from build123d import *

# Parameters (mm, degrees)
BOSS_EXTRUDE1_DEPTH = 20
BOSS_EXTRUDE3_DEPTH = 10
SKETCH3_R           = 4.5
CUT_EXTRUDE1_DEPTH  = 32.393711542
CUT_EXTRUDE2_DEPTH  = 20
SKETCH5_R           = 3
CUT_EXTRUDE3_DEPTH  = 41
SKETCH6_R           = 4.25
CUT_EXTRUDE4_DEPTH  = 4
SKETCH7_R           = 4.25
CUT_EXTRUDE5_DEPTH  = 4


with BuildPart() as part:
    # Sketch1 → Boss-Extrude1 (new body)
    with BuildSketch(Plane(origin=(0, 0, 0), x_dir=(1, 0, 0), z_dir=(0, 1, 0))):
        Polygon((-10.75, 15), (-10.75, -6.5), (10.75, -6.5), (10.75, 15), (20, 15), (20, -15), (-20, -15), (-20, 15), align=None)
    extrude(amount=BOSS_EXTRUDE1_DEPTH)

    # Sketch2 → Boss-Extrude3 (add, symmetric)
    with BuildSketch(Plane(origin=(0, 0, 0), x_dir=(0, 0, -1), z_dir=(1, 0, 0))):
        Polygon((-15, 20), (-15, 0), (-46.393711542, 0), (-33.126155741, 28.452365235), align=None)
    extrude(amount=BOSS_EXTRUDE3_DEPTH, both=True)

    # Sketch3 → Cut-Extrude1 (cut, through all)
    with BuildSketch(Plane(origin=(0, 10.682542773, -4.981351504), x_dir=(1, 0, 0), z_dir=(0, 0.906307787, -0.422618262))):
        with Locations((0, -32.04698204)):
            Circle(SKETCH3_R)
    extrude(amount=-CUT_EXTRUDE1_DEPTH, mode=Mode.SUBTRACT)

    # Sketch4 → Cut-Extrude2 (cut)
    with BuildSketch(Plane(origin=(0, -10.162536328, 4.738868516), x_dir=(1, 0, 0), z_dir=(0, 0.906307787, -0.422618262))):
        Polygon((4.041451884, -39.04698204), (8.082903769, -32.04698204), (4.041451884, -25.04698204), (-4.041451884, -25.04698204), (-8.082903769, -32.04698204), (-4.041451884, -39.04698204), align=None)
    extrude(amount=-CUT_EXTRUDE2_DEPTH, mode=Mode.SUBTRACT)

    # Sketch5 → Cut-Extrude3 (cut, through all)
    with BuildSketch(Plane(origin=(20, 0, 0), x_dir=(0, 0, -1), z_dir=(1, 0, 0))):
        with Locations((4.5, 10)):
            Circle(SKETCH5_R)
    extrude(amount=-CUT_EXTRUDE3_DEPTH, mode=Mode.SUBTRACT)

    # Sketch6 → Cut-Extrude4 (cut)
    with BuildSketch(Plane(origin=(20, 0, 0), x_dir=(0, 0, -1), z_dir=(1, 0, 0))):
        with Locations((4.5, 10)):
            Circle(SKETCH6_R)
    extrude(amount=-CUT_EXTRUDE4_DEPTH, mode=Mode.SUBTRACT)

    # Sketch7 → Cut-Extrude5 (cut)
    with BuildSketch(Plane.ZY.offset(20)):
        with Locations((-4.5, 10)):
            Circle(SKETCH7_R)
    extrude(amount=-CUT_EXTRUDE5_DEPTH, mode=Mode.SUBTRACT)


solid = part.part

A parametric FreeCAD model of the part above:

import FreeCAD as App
import Part
import Sketcher
Q = App.Units.Quantity

doc = App.newDocument("Part")
body = doc.addObject("PartDesign::Body", "Body")

# Sketch on XZ plane
sketch1 = body.newObject("Sketcher::SketchObject", "Sketch")
sketch1.AttachmentSupport = (doc.getObject("XZ_Plane"), [""])
sketch1.MapMode = "FlatFace"
sketch1.addGeometry([
    Part.LineSegment(App.Vector(-11, 6, 0), App.Vector(-11, -15, 0)),  # 0
    Part.LineSegment(App.Vector(-11, -15, 0), App.Vector(-20, -15, 0)),  # 1
    Part.LineSegment(App.Vector(-20, -15, 0), App.Vector(-20, 15, 0)),  # 2
    Part.LineSegment(App.Vector(-20, 15, 0), App.Vector(20, 15, 0)),  # 3
    Part.LineSegment(App.Vector(20, 15, 0), App.Vector(20, -15, 0)),  # 4
    Part.LineSegment(App.Vector(20, -15, 0), App.Vector(11, -15, 0)),  # 5
    Part.LineSegment(App.Vector(11, -15, 0), App.Vector(11, 6, 0)),  # 6
    Part.LineSegment(App.Vector(11, 6, 0), App.Vector(-11, 6, 0)),  # 7
], False)
sketch1.addConstraint([
    Sketcher.Constraint("Coincident", 0, 2, 1, 1),
    Sketcher.Constraint("Coincident", 1, 2, 2, 1),
    Sketcher.Constraint("Coincident", 2, 2, 3, 1),
    Sketcher.Constraint("Coincident", 3, 2, 4, 1),
    Sketcher.Constraint("Coincident", 4, 2, 5, 1),
    Sketcher.Constraint("Coincident", 5, 2, 6, 1),
    Sketcher.Constraint("Coincident", 6, 2, 7, 1),
    Sketcher.Constraint("Coincident", 7, 2, 0, 1),
    Sketcher.Constraint("Vertical", 0),
    Sketcher.Constraint("Horizontal", 1),
    Sketcher.Constraint("Vertical", 2),
    Sketcher.Constraint("Horizontal", 3),
    Sketcher.Constraint("Vertical", 4),
    Sketcher.Constraint("Horizontal", 5),
    Sketcher.Constraint("Vertical", 6),
    Sketcher.Constraint("Horizontal", 7),
    Sketcher.Constraint("Symmetric", 1, 2, 3, 2, -1, 1),
    Sketcher.Constraint("Symmetric", 0, 2, 5, 2, -2),
    Sketcher.Constraint("Equal", 7, 0),
    Sketcher.Constraint("DistanceX", 3, 1, 3, 2, Q("40 mm")),
    Sketcher.Constraint("DistanceY", 2, 1, 2, 2, Q("30 mm")),
    Sketcher.Constraint("DistanceX", 7, 2, 7, 1, Q("21.5 mm")),
])
pad1 = body.newObject("PartDesign::Pad", "Pad")
pad1.Profile = sketch1
pad1.Length = 20
pad1.Reversed = True

# Sketch on YZ plane
sketch2 = body.newObject("Sketcher::SketchObject", "Sketch001")
sketch2.AttachmentSupport = (doc.getObject("YZ_Plane"), [""])
sketch2.MapMode = "FlatFace"
sketch2.addGeometry([
    Part.LineSegment(App.Vector(0, 15, 0), App.Vector(20, 15, 0)),
    Part.LineSegment(App.Vector(20, 15, 0), App.Vector(28, 33, 0)),
    Part.LineSegment(App.Vector(28, 33, 0), App.Vector(0, 46, 0)),
    Part.LineSegment(App.Vector(0, 46, 0), App.Vector(0, 15, 0)),
], False)
sketch2.addConstraint([
    Sketcher.Constraint("Coincident", 0, 2, 1, 1),
    Sketcher.Constraint("Coincident", 1, 2, 2, 1),
    Sketcher.Constraint("Coincident", 2, 2, 3, 1),
    Sketcher.Constraint("Coincident", 3, 2, 0, 1),
    Sketcher.Constraint("Horizontal", 0),
    Sketcher.Constraint("Vertical", 3),
    Sketcher.Constraint("PointOnObject", 2, 2, -2),
    Sketcher.Constraint("Perpendicular", 1, 2),
    Sketcher.Constraint("DistanceX", 0, 1, 0, 2, Q("20 mm")),
    Sketcher.Constraint("Angle", 1, Q("65 deg")),
    Sketcher.Constraint("Distance", 1, Q("20 mm")),
    Sketcher.Constraint("DistanceY", -1, 1, 0, 2, Q("15 mm")),
])
pad2 = body.newObject("PartDesign::Pad", "Pad001")
pad2.Profile = sketch2
pad2.Length = 20
pad2.Midplane = True

# Sketch on an angled plane
sketch3 = body.newObject("Sketcher::SketchObject", "Sketch002")
sketch3.Placement = App.Placement(App.Vector(0, 10.682543, -4.981352), App.Rotation(App.Vector(1, 0, 0), App.Vector(0, -0.422618262, -0.906307787), App.Vector(0, 0.906307787, -0.422618262), "ZXY"))
sketch3.addGeometry(Part.Circle(App.Vector(0, -32, 0), App.Vector(0, 0, 1), 4.5), False)
sketch3.addConstraint([
    Sketcher.Constraint("PointOnObject", 0, 3, -2),
    Sketcher.Constraint("Diameter", 0, Q("9 mm")),
    Sketcher.Constraint("DistanceY", 0, 3, -1, 1, Q("32.046982 mm")),
])
pocket1 = body.newObject("PartDesign::Pocket", "Pocket")
pocket1.Profile = sketch3
pocket1.Type = "ThroughAll"

# Sketch on an angled plane
sketch4 = body.newObject("Sketcher::SketchObject", "Sketch003")
sketch4.Placement = App.Placement(App.Vector(0, -10.162536, 4.738869), App.Rotation(App.Vector(1, 0, 0), App.Vector(0, -0.422618262, -0.906307787), App.Vector(0, 0.906307787, -0.422618262), "ZXY"))
sketch4.addGeometry([
    Part.LineSegment(App.Vector(4, -39, 0), App.Vector(8, -32, 0)),  # 0
    Part.LineSegment(App.Vector(8, -32, 0), App.Vector(4, -25, 0)),  # 1
    Part.LineSegment(App.Vector(4, -25, 0), App.Vector(-4, -25, 0)),  # 2
    Part.LineSegment(App.Vector(-4, -25, 0), App.Vector(-8, -32, 0)),  # 3
    Part.LineSegment(App.Vector(-8, -32, 0), App.Vector(-4, -39, 0)),  # 4
    Part.LineSegment(App.Vector(-4, -39, 0), App.Vector(4, -39, 0)),  # 5
], False)
sketch4.addConstraint([
    Sketcher.Constraint("Coincident", 0, 2, 1, 1),
    Sketcher.Constraint("Coincident", 1, 2, 2, 1),
    Sketcher.Constraint("Coincident", 2, 2, 3, 1),
    Sketcher.Constraint("Coincident", 3, 2, 4, 1),
    Sketcher.Constraint("Coincident", 4, 2, 5, 1),
    Sketcher.Constraint("Coincident", 5, 2, 0, 1),
    Sketcher.Constraint("Horizontal", 2),
    Sketcher.Constraint("Horizontal", 5),
    Sketcher.Constraint("Symmetric", 0, 2, 3, 2, -2),
    Sketcher.Constraint("Parallel", 0, 3),
    Sketcher.Constraint("Parallel", 1, 4),
    Sketcher.Constraint("Vertical", 2, 2, 4, 2),
    Sketcher.Constraint("Vertical", 1, 2, 5, 2),
    Sketcher.Constraint("Angle", 0, Q("60 deg")),
    Sketcher.Constraint("DistanceY", 0, 2, 1, 2, Q("7 mm")),
    Sketcher.Constraint("DistanceX", 2, 2, 2, 1, Q("8.082904 mm")),
    Sketcher.Constraint("DistanceY", 0, 2, -1, 1, Q("32.046982 mm")),
])
pocket2 = body.newObject("PartDesign::Pocket", "Pocket001")
pocket2.Profile = sketch4
pocket2.Length = 20

# Sketch on YZ plane
sketch5 = body.newObject("Sketcher::SketchObject", "Sketch004")
sketch5.AttachmentSupport = (doc.getObject("YZ_Plane"), [""])
sketch5.MapMode = "FlatFace"
sketch5.AttachmentOffset = App.Placement(App.Vector(0, 0, 20), App.Rotation())
sketch5.addGeometry(Part.Circle(App.Vector(10, -4.5, 0), App.Vector(0, 0, 1), 3), False)
sketch5.addConstraint([
    Sketcher.Constraint("Diameter", 0, Q("6 mm")),
    Sketcher.Constraint("DistanceX", -1, 1, 0, 3, Q("10 mm")),
    Sketcher.Constraint("DistanceY", 0, 3, -1, 1, Q("4.5 mm")),
])
pocket3 = body.newObject("PartDesign::Pocket", "Pocket002")
pocket3.Profile = sketch5
pocket3.Type = "ThroughAll"

# Sketch on YZ plane
sketch6 = body.newObject("Sketcher::SketchObject", "Sketch005")
sketch6.AttachmentSupport = (doc.getObject("YZ_Plane"), [""])
sketch6.MapMode = "FlatFace"
sketch6.AttachmentOffset = App.Placement(App.Vector(0, 0, 20), App.Rotation())
sketch6.addGeometry(Part.Circle(App.Vector(10, -4.5, 0), App.Vector(0, 0, 1), 4.2), False)
sketch6.addConstraint([
    Sketcher.Constraint("Diameter", 0, Q("8.5 mm")),
    Sketcher.Constraint("DistanceX", -1, 1, 0, 3, Q("10 mm")),
    Sketcher.Constraint("DistanceY", 0, 3, -1, 1, Q("4.5 mm")),
])
pocket4 = body.newObject("PartDesign::Pocket", "Pocket003")
pocket4.Profile = sketch6
pocket4.Length = 4

# Sketch on YZ plane
sketch7 = body.newObject("Sketcher::SketchObject", "Sketch006")
sketch7.AttachmentSupport = (doc.getObject("YZ_Plane"), [""])
sketch7.MapMode = "FlatFace"
sketch7.AttachmentOffset = App.Placement(App.Vector(0, 0, -20), App.Rotation())
sketch7.addGeometry(Part.Circle(App.Vector(10, -4.5, 0), App.Vector(0, 0, 1), 4.2), False)
sketch7.addConstraint([
    Sketcher.Constraint("Diameter", 0, Q("8.5 mm")),
    Sketcher.Constraint("DistanceX", -1, 1, 0, 3, Q("10 mm")),
    Sketcher.Constraint("DistanceY", 0, 3, -1, 1, Q("4.5 mm")),
])
pocket5 = body.newObject("PartDesign::Pocket", "Pocket004")
pocket5.Profile = sketch7
pocket5.Length = 4
pocket5.Reversed = True

doc.recompute()
